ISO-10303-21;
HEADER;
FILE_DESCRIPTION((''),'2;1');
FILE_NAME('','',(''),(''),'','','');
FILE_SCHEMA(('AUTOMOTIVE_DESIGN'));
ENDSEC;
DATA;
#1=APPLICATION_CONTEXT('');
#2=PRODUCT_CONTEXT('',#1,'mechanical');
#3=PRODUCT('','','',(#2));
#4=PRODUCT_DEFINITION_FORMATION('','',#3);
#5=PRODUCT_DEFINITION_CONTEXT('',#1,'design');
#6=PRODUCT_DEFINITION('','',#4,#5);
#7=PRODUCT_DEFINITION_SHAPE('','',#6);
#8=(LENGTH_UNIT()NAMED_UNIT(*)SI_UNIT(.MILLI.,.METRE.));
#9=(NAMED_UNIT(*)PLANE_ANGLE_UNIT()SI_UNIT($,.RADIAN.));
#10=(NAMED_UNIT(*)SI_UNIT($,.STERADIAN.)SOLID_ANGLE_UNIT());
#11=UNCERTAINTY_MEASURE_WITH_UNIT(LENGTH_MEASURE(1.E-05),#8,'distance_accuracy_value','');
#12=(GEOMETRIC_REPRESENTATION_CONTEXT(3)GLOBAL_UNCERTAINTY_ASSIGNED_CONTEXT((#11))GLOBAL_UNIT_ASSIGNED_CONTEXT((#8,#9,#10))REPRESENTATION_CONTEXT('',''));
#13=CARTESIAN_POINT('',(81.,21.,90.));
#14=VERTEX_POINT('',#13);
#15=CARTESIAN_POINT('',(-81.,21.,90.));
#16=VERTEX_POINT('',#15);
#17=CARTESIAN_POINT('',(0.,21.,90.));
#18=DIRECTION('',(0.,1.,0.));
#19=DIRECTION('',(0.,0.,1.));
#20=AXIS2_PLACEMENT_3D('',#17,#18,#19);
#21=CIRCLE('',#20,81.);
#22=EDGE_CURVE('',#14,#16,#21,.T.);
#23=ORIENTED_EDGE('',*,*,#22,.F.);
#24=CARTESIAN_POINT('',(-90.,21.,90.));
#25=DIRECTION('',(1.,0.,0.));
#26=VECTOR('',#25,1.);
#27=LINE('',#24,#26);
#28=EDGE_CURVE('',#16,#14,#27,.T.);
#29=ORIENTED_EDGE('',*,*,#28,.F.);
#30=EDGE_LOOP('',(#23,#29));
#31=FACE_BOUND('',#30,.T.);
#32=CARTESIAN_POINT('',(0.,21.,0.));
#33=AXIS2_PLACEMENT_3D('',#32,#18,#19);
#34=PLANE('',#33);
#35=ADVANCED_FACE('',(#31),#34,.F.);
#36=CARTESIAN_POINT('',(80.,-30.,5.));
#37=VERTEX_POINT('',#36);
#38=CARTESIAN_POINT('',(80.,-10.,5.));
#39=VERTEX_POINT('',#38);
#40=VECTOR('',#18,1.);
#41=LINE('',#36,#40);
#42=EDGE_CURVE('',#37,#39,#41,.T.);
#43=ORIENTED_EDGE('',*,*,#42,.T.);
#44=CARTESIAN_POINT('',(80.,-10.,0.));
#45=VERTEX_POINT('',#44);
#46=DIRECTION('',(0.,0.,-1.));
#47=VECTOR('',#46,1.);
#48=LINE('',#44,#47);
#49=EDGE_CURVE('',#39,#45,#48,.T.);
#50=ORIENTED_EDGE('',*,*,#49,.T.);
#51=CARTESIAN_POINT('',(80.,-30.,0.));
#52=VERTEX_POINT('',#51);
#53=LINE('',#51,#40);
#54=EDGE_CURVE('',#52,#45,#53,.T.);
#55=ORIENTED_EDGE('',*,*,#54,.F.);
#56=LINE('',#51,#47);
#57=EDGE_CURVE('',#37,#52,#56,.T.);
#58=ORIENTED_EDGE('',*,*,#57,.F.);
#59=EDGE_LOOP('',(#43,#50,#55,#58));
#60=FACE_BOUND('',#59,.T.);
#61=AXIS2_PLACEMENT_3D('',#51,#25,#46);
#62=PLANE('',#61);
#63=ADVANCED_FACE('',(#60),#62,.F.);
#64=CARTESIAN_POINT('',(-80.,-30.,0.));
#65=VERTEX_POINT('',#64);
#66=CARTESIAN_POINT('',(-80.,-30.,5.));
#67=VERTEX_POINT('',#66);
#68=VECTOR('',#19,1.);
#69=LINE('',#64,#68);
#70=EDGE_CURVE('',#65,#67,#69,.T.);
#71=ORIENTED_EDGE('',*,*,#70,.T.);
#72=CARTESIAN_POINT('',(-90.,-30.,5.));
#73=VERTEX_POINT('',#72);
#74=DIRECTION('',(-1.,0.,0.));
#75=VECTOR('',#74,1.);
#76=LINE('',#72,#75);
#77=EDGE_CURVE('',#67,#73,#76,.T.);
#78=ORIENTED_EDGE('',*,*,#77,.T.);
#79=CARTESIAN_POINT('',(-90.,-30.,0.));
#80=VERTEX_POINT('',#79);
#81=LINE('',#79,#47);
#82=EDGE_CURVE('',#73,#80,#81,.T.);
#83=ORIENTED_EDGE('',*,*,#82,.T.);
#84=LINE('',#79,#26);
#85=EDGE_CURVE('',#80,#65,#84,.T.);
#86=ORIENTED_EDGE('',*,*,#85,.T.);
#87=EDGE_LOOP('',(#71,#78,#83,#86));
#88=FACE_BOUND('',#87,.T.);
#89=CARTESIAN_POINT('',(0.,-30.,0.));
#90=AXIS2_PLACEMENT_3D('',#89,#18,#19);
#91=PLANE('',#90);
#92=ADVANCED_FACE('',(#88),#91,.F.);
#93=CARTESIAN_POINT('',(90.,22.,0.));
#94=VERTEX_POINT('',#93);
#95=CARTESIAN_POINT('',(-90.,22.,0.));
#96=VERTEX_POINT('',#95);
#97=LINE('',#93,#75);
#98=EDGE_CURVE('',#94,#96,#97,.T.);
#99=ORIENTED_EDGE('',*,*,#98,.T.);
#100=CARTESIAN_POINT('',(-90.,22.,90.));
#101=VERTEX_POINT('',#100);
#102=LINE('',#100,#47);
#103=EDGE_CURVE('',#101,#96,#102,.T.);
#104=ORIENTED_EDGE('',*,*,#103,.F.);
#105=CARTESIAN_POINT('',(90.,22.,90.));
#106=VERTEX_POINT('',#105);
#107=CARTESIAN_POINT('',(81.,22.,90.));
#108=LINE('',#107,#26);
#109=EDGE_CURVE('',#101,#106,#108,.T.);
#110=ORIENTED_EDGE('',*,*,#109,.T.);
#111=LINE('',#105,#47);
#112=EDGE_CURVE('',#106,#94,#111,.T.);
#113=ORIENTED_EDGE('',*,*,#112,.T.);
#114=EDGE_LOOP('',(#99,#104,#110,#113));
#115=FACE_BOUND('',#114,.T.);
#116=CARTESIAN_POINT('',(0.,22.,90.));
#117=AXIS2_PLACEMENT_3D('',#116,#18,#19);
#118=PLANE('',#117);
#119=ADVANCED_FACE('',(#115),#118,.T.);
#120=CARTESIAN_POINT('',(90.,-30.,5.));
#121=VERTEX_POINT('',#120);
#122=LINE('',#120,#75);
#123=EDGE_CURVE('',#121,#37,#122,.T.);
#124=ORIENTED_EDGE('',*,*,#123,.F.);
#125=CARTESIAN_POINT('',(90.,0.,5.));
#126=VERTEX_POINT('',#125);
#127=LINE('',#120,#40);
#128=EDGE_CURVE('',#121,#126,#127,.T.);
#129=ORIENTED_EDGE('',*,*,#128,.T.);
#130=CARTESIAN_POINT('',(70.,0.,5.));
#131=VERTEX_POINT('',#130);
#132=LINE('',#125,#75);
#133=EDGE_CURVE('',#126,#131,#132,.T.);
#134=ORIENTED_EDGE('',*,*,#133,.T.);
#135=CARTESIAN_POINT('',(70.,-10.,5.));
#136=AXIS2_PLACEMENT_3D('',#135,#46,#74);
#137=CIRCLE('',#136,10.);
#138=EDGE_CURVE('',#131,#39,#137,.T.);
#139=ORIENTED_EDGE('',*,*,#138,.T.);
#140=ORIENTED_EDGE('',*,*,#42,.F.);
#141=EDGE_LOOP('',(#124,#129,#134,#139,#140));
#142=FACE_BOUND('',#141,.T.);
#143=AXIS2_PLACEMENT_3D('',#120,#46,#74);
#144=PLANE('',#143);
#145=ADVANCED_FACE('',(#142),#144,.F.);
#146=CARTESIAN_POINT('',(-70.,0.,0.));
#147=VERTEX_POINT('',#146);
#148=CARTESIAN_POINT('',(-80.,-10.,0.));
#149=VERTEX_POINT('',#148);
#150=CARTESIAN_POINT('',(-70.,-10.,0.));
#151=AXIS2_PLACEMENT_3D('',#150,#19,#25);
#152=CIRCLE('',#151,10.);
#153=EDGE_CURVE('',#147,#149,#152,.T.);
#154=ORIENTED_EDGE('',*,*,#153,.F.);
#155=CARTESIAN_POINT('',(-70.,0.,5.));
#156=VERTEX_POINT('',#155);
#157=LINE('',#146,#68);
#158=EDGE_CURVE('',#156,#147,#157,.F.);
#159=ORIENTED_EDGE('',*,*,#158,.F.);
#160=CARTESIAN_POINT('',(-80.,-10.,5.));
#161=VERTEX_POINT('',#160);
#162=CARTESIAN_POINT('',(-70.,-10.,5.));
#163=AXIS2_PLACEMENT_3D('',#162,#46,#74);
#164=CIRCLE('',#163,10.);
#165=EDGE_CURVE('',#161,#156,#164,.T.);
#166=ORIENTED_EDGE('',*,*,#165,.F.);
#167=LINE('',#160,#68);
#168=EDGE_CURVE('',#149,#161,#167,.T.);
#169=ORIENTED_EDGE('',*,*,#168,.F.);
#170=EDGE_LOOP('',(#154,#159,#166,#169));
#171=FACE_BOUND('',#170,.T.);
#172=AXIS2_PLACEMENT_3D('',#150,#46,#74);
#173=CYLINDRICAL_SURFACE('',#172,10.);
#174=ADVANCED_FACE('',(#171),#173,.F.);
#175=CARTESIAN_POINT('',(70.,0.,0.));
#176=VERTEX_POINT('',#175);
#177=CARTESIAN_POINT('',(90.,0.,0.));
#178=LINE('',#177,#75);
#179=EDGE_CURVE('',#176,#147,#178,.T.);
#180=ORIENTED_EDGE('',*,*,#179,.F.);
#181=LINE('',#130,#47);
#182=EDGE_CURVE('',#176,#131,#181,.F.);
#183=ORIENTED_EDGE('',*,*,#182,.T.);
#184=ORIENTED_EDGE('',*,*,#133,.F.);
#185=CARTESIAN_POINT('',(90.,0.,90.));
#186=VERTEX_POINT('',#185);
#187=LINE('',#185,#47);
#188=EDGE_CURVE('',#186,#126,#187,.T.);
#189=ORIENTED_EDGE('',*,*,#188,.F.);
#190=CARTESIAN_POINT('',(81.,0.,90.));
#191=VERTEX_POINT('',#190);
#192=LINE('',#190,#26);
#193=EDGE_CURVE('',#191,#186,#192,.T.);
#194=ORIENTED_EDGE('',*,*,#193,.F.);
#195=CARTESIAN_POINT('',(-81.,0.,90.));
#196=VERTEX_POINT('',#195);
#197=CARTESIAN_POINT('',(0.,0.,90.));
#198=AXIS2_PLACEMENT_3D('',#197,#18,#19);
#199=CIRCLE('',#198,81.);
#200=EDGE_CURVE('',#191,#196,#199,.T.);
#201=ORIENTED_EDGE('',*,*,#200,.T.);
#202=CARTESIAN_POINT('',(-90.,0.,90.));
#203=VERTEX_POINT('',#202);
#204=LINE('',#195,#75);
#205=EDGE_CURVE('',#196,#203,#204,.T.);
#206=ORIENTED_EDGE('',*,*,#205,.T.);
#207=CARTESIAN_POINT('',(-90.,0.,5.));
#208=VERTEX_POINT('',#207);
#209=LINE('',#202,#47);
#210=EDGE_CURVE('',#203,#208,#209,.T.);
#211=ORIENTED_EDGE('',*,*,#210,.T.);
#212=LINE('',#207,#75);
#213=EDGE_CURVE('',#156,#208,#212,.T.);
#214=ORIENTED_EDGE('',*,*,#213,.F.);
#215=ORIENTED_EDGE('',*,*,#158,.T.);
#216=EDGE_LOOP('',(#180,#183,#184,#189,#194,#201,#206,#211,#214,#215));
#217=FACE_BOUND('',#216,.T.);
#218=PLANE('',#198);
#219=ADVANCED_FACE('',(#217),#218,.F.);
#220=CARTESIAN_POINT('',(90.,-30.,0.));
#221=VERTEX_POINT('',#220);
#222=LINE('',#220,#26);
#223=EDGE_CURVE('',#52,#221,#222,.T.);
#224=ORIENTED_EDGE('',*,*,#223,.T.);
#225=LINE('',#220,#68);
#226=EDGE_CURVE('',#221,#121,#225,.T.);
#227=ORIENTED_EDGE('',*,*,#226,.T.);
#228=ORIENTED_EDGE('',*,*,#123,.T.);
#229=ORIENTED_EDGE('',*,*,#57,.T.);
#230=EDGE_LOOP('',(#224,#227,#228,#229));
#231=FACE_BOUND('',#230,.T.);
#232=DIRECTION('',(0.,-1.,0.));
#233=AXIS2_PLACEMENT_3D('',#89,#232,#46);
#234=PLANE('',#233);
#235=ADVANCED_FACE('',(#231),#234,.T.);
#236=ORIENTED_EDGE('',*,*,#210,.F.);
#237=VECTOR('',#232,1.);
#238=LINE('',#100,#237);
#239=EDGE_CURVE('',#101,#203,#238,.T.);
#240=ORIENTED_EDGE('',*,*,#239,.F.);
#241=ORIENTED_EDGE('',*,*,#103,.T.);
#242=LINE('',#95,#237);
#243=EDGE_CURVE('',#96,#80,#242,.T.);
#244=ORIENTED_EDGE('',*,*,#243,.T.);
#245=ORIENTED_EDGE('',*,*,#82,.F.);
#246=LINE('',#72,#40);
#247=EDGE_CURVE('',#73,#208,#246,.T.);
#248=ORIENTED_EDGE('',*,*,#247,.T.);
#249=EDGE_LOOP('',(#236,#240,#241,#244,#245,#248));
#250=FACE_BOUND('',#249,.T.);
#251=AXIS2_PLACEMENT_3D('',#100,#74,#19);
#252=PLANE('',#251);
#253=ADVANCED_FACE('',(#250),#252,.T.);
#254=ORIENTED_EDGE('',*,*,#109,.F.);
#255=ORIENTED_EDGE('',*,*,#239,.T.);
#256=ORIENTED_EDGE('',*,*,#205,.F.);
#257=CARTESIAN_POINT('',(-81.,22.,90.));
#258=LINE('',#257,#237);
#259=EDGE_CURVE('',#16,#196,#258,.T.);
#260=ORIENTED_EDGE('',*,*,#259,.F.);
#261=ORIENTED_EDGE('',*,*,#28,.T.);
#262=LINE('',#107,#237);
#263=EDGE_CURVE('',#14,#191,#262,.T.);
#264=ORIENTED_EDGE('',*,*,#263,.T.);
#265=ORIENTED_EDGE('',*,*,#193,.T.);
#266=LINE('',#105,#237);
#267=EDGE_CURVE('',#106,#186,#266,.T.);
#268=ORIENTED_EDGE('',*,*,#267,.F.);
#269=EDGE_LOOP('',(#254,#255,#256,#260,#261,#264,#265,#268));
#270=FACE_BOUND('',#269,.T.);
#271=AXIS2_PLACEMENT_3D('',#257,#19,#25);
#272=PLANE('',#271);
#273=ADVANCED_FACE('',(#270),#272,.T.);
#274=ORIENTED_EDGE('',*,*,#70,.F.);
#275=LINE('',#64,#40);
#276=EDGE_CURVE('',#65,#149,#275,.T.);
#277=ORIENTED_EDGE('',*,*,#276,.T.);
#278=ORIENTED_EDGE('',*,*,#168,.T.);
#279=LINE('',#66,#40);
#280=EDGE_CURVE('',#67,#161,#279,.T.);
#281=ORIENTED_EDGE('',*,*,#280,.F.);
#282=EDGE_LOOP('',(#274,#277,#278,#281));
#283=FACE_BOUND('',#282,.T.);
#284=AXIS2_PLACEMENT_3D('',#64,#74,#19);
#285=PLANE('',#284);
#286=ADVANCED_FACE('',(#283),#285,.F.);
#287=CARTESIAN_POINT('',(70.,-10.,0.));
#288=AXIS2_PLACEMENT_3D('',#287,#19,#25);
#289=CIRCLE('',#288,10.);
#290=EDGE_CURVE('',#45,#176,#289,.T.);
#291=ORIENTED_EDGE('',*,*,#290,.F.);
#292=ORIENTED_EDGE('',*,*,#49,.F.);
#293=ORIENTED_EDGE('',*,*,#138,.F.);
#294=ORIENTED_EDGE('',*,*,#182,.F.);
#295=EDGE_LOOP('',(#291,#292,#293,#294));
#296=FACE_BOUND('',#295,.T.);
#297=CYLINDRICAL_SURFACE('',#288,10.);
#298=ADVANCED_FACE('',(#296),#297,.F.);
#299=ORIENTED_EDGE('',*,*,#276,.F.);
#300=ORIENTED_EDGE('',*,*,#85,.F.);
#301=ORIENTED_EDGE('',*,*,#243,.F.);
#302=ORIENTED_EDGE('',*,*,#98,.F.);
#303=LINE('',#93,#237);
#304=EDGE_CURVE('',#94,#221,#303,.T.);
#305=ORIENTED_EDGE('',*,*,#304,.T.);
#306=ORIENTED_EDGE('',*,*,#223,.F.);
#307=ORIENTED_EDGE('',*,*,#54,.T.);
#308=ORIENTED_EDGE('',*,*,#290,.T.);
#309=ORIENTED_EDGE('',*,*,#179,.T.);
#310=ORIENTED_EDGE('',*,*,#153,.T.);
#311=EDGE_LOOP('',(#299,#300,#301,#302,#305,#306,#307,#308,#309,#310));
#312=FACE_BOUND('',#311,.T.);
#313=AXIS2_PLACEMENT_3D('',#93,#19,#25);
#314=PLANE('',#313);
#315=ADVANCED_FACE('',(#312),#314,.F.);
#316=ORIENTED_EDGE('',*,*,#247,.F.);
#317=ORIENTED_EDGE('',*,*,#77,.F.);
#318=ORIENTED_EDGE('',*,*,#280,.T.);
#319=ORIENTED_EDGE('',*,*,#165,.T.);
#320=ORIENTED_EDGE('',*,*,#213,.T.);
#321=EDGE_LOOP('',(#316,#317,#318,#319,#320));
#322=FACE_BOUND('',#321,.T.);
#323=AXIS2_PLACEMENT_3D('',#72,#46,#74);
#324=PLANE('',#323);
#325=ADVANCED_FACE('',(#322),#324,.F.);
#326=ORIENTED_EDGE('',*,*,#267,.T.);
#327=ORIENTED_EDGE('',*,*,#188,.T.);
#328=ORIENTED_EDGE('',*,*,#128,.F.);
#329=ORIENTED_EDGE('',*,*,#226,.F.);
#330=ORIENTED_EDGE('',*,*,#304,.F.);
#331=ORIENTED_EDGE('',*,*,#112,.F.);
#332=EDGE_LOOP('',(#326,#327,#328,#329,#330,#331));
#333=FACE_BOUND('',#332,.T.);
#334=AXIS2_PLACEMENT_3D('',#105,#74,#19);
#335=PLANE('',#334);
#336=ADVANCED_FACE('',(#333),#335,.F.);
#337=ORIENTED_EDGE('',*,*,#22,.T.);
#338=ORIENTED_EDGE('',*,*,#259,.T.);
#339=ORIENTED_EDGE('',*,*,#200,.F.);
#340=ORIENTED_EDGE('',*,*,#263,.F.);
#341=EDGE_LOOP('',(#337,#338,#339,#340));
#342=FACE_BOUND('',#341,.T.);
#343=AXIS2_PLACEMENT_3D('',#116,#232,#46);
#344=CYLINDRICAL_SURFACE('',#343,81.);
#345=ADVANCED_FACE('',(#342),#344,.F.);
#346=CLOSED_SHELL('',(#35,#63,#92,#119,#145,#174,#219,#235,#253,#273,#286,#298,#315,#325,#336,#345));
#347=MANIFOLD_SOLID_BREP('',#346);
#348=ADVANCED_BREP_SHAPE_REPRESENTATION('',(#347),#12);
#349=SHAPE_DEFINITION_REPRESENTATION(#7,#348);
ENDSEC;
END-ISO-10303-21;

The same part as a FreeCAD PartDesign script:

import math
import FreeCAD as App
import Part
import Sketcher
Q = App.Units.Quantity


def edges_at(feature, points):
    """Names of the edges that pass closest to the given points."""
    edges = feature.Shape.Edges
    near = lambda p: min(range(len(edges)), key=lambda i: edges[i].distToShape(Part.Vertex(*p))[0])
    return sorted({f"Edge{near(p) + 1}" for p in points})


def add_polygon(sketch, points):
    """Adds a closed chain of lines whose ends are joined by coincident constraints."""
    first, n = sketch.GeometryCount, len(points)
    for a, b in zip(points, points[1:] + points[:1]):
        sketch.addGeometry(Part.LineSegment(App.Vector(*a, 0), App.Vector(*b, 0)), False)
    for i in range(n):
        sketch.addConstraint(Sketcher.Constraint("Coincident", first + i, 2, first + (i + 1) % n, 1))

doc = App.newDocument("Part")
body = doc.addObject("PartDesign::Body", "Body")

# Sketch on XZ plane
sketch1 = body.newObject("Sketcher::SketchObject", "Sketch")
sketch1.AttachmentSupport = (doc.getObject("XZ_Plane"), [""])
sketch1.MapMode = "FlatFace"
sketch1.addGeometry([
    Part.LineSegment(App.Vector(90, 0, 0), App.Vector(-90, 0, 0)),  # 0
    Part.LineSegment(App.Vector(-90, 0, 0), App.Vector(-90, 90, 0)),  # 1
    Part.LineSegment(App.Vector(-90, 90, 0), App.Vector(-81, 90, 0)),  # 2
    Part.ArcOfCircle(Part.Circle(App.Vector(0, 90, 0), App.Vector(0, 0, 1), 81), math.radians(180), math.radians(360)),  # 3
    Part.LineSegment(App.Vector(81, 90, 0), App.Vector(90, 90, 0)),  # 4
    Part.LineSegment(App.Vector(90, 90, 0), App.Vector(90, 0, 0)),  # 5
], False)
sketch1.addConstraint([
    Sketcher.Constraint("Coincident", 0, 2, 1, 1),
    Sketcher.Constraint("Coincident", 1, 2, 2, 1),
    Sketcher.Constraint("Coincident", 2, 2, 3, 1),
    Sketcher.Constraint("Coincident", 3, 2, 4, 1),
    Sketcher.Constraint("Coincident", 4, 2, 5, 1),
    Sketcher.Constraint("Coincident", 5, 2, 0, 1),
    Sketcher.Constraint("Horizontal", 0),
    Sketcher.Constraint("Vertical", 1),
    Sketcher.Constraint("Horizontal", 2),
    Sketcher.Constraint("Horizontal", 4),
    Sketcher.Constraint("Vertical", 5),
    Sketcher.Constraint("Symmetric", 0, 2, 5, 2, -1, 1),
    Sketcher.Constraint("Symmetric", 2, 2, 3, 2, -2),
    Sketcher.Constraint("Horizontal", 3, 3, 1, 2),
    Sketcher.Constraint("Radius", 3, Q("81 mm")),
    Sketcher.Constraint("DistanceX", 0, 2, 0, 1, Q("180 mm")),
    Sketcher.Constraint("DistanceY", 1, 1, 1, 2, Q("90 mm")),
])
pad1 = body.newObject("PartDesign::Pad", "Pad")
pad1.Profile = sketch1
pad1.Length = 22
pad1.Reversed = True

# Sketch on XZ plane
sketch2 = body.newObject("Sketcher::SketchObject", "Sketch001")
sketch2.AttachmentSupport = (doc.getObject("XZ_Plane"), [""])
sketch2.MapMode = "FlatFace"
sketch2.AttachmentOffset = App.Placement(App.Vector(0, 0, -22), App.Rotation())
add_polygon(sketch2, [(-90, 0), (-90, 90), (90, 90), (90, 0)])  # lines 0-3
sketch2.addConstraint([
    Sketcher.Constraint("Vertical", 0),
    Sketcher.Constraint("Horizontal", 1),
    Sketcher.Constraint("Vertical", 2),
    Sketcher.Constraint("Horizontal", 3),
    Sketcher.Constraint("Symmetric", 2, 2, 3, 2, -1, 1),
    Sketcher.Constraint("DistanceX", 1, 1, 1, 2, Q("180 mm")),
    Sketcher.Constraint("DistanceY", 0, 1, 0, 2, Q("90 mm")),
])
pad2 = body.newObject("PartDesign::Pad", "Pad001")
pad2.Profile = sketch2
pad2.Length = 1

# Sketch on XZ plane
sketch3 = body.newObject("Sketcher::SketchObject", "Sketch002")
sketch3.AttachmentSupport = (doc.getObject("XZ_Plane"), [""])
sketch3.MapMode = "FlatFace"
add_polygon(sketch3, [(-90, 5), (-90, 0), (-80, 0), (-80, 5)])  # lines 0-3
add_polygon(sketch3, [(80, 5), (80, 0), (90, 0), (90, 5)])  # lines 4-7
sketch3.addConstraint([
    Sketcher.Constraint("Vertical", 0),
    Sketcher.Constraint("Horizontal", 1),
    Sketcher.Constraint("Vertical", 2),
    Sketcher.Constraint("Horizontal", 3),
    Sketcher.Constraint("Vertical", 4),
    Sketcher.Constraint("Horizontal", 5),
    Sketcher.Constraint("Vertical", 6),
    Sketcher.Constraint("Horizontal", 7),
    Sketcher.Constraint("Symmetric", 1, 2, 4, 2, -1, 1),
    Sketcher.Constraint("Symmetric", 0, 2, 5, 2, -2),
    Sketcher.Constraint("Horizontal", 3, 2, 6, 2),
    Sketcher.Constraint("DistanceX", 1, 1, 1, 2, Q("10 mm")),
    Sketcher.Constraint("DistanceY", 0, 2, 0, 1, Q("5 mm")),
    Sketcher.Constraint("DistanceX", 0, 2, -1, 1, Q("90 mm")),
])
pad3 = body.newObject("PartDesign::Pad", "Pad002")
pad3.Profile = sketch3
pad3.Length = 30
doc.recompute()

fillet = body.newObject("PartDesign::Fillet", "Fillet")
fillet.Base = (pad3, edges_at(pad3, [(-80, 0, 2.5), (80, 0, 2.5)]))
fillet.Radius = 10

doc.recompute()
